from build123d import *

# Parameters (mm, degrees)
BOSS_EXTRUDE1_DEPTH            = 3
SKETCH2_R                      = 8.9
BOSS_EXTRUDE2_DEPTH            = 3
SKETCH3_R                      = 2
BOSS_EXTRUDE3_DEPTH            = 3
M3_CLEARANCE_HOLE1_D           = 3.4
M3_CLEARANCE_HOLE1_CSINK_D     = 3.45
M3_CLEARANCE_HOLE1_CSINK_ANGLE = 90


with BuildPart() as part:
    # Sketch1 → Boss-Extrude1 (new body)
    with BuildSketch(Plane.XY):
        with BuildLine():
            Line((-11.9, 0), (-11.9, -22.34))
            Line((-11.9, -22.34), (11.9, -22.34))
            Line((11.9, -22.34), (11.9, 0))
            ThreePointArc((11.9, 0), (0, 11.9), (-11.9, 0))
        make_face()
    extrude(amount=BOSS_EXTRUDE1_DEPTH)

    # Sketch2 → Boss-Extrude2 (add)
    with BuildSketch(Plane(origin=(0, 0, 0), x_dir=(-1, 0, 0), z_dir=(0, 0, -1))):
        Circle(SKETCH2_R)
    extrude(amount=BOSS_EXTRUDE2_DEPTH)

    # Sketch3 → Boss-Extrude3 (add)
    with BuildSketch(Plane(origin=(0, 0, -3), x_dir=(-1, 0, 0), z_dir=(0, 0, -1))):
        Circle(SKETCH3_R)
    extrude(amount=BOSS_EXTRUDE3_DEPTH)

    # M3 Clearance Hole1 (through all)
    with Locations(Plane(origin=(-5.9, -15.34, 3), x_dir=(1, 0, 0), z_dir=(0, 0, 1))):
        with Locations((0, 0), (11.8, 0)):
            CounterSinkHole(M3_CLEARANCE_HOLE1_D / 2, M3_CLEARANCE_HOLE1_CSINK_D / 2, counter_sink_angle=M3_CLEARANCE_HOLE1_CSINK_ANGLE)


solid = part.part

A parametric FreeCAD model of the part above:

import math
import FreeCAD as App
import Part
import Sketcher

doc = App.newDocument("Part")
body = doc.addObject("PartDesign::Body", "Body")

sketch1 = doc.addObject("Sketcher::SketchObject", "Sketch")
body.addObject(sketch1)
sketch1.AttachmentSupport = (doc.XY_Plane, [""])
sketch1.MapMode = "FlatFace"
sketch1.addGeometry([
    Part.LineSegment(App.Vector(-11.9, 0, 0), App.Vector(-11.9, -22.34, 0)),
    Part.LineSegment(App.Vector(-11.9, -22.34, 0), App.Vector(11.9, -22.34, 0)),
    Part.LineSegment(App.Vector(11.9, -22.34, 0), App.Vector(11.9, 0, 0)),
    Part.ArcOfCircle(Part.Circle(App.Vector(0, 0, 0), App.Vector(0, 0, 1), 11.9), math.radians(0), math.radians(180)),
], False)
sketch1.addConstraint([
    Sketcher.Constraint("Coincident", 0, 2, 1, 1),
    Sketcher.Constraint("Coincident", 1, 2, 2, 1),
    Sketcher.Constraint("Tangent", 2, 2, 3, 1),
    Sketcher.Constraint("Tangent", 3, 2, 0, 1),
    Sketcher.Constraint("Vertical", 0),
    Sketcher.Constraint("Horizontal", 1),
    Sketcher.Constraint("Vertical", 2),
    Sketcher.Constraint("Coincident", 3, 3, -1, 1),
    Sketcher.Constraint("Radius", 3, 11.9),
    Sketcher.Constraint("DistanceY", 0, 2, 0, 1, 22.34),
])
pad1 = doc.addObject("PartDesign::Pad", "Pad")
body.addObject(pad1)
pad1.Profile = sketch1
pad1.Length = 3

sketch2 = doc.addObject("Sketcher::SketchObject", "Sketch001")
body.addObject(sketch2)
sketch2.AttachmentSupport = (doc.XY_Plane, [""])
sketch2.MapMode = "FlatFace"
sketch2.addGeometry(Part.Circle(App.Vector(0, 0, 0), App.Vector(0, 0, 1), 8.9), False)
sketch2.addConstraint([
    Sketcher.Constraint("Coincident", 0, 3, -1, 1),
    Sketcher.Constraint("Diameter", 0, 17.8),
])
pad2 = doc.addObject("PartDesign::Pad", "Pad001")
body.addObject(pad2)
pad2.Profile = sketch2
pad2.Length = 3
pad2.Reversed = True

sketch3 = doc.addObject("Sketcher::SketchObject", "Sketch002")
body.addObject(sketch3)
sketch3.AttachmentSupport = (doc.XY_Plane, [""])
sketch3.MapMode = "FlatFace"
sketch3.AttachmentOffset = App.Placement(App.Vector(0, 0, -3), App.Rotation())
sketch3.addGeometry(Part.Circle(App.Vector(0, 0, 0), App.Vector(0, 0, 1), 2), False)
sketch3.addConstraint([
    Sketcher.Constraint("Coincident", 0, 3, -1, 1),
    Sketcher.Constraint("Diameter", 0, 4.0),
])
pad3 = doc.addObject("PartDesign::Pad", "Pad002")
body.addObject(pad3)
pad3.Profile = sketch3
pad3.Length = 3
pad3.Reversed = True

sketch4 = doc.addObject("Sketcher::SketchObject", "Sketch003")
body.addObject(sketch4)
sketch4.AttachmentSupport = (doc.XY_Plane, [""])
sketch4.MapMode = "FlatFace"
sketch4.AttachmentOffset = App.Placement(App.Vector(0, 0, 3), App.Rotation())
sketch4.addGeometry([
    Part.Circle(App.Vector(-5.9, -15.34, 0), App.Vector(0, 0, 1), 1.7),
    Part.Circle(App.Vector(5.9, -15.34, 0), App.Vector(0, 0, 1), 1.7),
], False)
sketch4.addConstraint([
    Sketcher.Constraint("Equal", 0, 1),
    Sketcher.Constraint("Symmetric", 0, 3, 1, 3, -2),
    Sketcher.Constraint("Diameter", 0, 3.4),
    Sketcher.Constraint("DistanceX", 0, 3, -1, 1, 5.9),
    Sketcher.Constraint("DistanceY", 0, 3, -1, 1, 15.34),
])
doc.recompute()
hole = doc.addObject("PartDesign::Hole", "Hole")
body.addObject(hole)
hole.Profile = sketch4
hole.ThreadType = "None"
hole.Diameter = 3.4
hole.DepthType = "ThroughAll"
hole.HoleCutType = "Countersink"
hole.HoleCutDiameter = 3.45
hole.HoleCutCountersinkAngle = 90

doc.recompute()
